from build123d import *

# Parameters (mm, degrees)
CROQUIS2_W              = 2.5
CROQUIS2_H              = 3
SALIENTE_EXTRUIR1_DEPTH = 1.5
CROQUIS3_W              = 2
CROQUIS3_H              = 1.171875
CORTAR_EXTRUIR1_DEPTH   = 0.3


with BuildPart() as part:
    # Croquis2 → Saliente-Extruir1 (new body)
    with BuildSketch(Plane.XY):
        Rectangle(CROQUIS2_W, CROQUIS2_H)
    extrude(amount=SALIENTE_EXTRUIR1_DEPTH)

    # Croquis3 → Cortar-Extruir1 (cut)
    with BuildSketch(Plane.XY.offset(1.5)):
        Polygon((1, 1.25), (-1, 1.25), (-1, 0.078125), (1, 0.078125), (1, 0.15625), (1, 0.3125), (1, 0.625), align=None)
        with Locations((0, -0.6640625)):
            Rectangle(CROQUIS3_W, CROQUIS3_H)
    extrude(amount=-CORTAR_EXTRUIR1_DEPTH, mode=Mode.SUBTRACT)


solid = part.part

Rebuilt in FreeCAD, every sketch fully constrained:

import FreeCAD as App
import Part
import Sketcher
Q = App.Units.Quantity


def add_polygon(sketch, points):
    """Adds a closed chain of lines whose ends are joined by coincident constraints."""
    first, n = sketch.GeometryCount, len(points)
    for a, b in zip(points, points[1:] + points[:1]):
        sketch.addGeometry(Part.LineSegment(App.Vector(*a, 0), App.Vector(*b, 0)), False)
    for i in range(n):
        sketch.addConstraint(Sketcher.Constraint("Coincident", first + i, 2, first + (i + 1) % n, 1))

doc = App.newDocument("Part")
params = doc.addObject("Spreadsheet::Sheet", "Params")
for row, (alias, value) in enumerate([
    ("sketch1_height", "3 mm"),
    ("sketch1_width", "2.5 mm"),
    ("pad1_length", "1.5 mm"),
    ("sketch2_width", "2 mm"),
    ("pocket1_length", "0.3 mm"),
], start=1):
    params.set(f"A{row}", alias)
    params.set(f"B{row}", "=" + value)
    params.setAlias(f"B{row}", alias)

body = doc.addObject("PartDesign::Body", "Body")

# Sketch on XY plane
sketch1 = body.newObject("Sketcher::SketchObject", "Sketch")
sketch1.AttachmentSupport = (doc.getObject("XY_Plane"), [""])
sketch1.MapMode = "FlatFace"
add_polygon(sketch1, [(-1.2, 1.5), (-1.2, -1.5), (1.2, -1.5), (1.2, 1.5)])  # lines 0-3
sketch1.addConstraint([
    Sketcher.Constraint("Vertical", 0),
    Sketcher.Constraint("Horizontal", 1),
    Sketcher.Constraint("Vertical", 2),
    Sketcher.Constraint("Horizontal", 3),
    Sketcher.Constraint("Symmetric", 0, 2, 2, 2, -1, 1),
    Sketcher.Constraint("DistanceY", 0, 2, 0, 1, Q("3 mm")),
    Sketcher.Constraint("DistanceX", 1, 1, 1, 2, Q("2.5 mm")),
])
sketch1.setExpression("Constraints[9]", "Params.sketch1_height")
sketch1.setExpression("Constraints[10]", "Params.sketch1_width")
pad1 = body.newObject("PartDesign::Pad", "Pad")
pad1.Profile = sketch1
pad1.setExpression("Length", "Params.pad1_length")

# Sketch on XY plane
sketch2 = body.newObject("Sketcher::SketchObject", "Sketch001")
sketch2.AttachmentSupport = (doc.getObject("XY_Plane"), [""])
sketch2.MapMode = "FlatFace"
sketch2.AttachmentOffset = App.Placement(App.Vector(0, 0, 1.5), App.Rotation())
add_polygon(sketch2, [(1, 1.2), (-1, 1.2), (-1, 0.1), (1, 0.1)])  # lines 0-3
add_polygon(sketch2, [(-1, -0.1), (-1, -1.2), (1, -1.2), (1, -0.1)])  # lines 4-7
sketch2.addConstraint([
    Sketcher.Constraint("Horizontal", 0),
    Sketcher.Constraint("Vertical", 1),
    Sketcher.Constraint("Horizontal", 2),
    Sketcher.Constraint("Vertical", 3),
    Sketcher.Constraint("Vertical", 4),
    Sketcher.Constraint("Horizontal", 5),
    Sketcher.Constraint("Vertical", 6),
    Sketcher.Constraint("Horizontal", 7),
    Sketcher.Constraint("Symmetric", 3, 2, 4, 2, -1, 1),
    Sketcher.Constraint("Symmetric", 1, 2, 6, 2, -1, 1),
    Sketcher.Constraint("Vertical", 1, 2, 4, 2),
    Sketcher.Constraint("DistanceX", 0, 2, 0, 1, Q("2 mm")),
    Sketcher.Constraint("DistanceY", 4, 2, 0, 2, Q("2.5 mm")),
    Sketcher.Constraint("DistanceY", 1, 2, 1, 1, Q("1.171875 mm")),
])
sketch2.setExpression("Constraints[19]", "Params.sketch2_width")
pocket1 = body.newObject("PartDesign::Pocket", "Pocket")
pocket1.Profile = sketch2
pocket1.setExpression("Length", "Params.pocket1_length")

doc.recompute()
